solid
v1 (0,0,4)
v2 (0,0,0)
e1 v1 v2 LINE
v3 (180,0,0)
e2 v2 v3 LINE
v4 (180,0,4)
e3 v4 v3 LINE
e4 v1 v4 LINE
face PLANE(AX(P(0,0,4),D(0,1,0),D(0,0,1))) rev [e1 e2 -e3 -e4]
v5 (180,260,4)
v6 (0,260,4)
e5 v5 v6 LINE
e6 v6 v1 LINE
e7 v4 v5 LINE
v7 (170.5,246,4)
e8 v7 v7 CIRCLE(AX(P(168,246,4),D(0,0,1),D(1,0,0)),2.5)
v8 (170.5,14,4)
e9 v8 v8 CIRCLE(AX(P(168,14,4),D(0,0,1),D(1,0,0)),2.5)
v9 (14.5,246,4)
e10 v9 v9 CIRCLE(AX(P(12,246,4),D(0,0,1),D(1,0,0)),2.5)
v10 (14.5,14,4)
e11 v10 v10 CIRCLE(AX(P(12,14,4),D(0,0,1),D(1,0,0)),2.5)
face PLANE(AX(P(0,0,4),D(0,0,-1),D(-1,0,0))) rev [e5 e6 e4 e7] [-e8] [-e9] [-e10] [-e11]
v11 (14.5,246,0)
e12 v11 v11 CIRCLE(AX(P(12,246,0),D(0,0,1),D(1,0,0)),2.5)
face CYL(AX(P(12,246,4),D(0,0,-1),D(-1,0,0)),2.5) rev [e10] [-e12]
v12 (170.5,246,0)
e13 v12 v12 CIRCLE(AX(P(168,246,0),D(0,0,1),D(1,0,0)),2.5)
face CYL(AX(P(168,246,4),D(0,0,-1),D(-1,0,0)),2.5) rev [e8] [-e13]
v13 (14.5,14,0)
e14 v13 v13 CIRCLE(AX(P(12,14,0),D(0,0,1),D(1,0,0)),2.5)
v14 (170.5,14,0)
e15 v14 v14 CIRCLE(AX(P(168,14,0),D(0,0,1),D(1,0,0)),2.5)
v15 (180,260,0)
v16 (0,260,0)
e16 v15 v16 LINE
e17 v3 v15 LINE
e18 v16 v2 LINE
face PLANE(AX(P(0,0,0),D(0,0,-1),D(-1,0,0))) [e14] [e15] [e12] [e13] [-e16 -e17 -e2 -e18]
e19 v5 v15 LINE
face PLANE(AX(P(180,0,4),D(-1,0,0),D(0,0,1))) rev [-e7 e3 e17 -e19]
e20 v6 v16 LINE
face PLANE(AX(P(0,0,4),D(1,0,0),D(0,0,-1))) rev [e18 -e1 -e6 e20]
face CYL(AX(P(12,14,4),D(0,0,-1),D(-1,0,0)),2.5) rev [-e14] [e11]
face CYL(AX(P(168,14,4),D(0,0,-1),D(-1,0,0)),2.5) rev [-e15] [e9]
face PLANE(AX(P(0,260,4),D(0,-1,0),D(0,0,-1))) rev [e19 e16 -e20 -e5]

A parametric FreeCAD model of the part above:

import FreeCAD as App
import Part
import Sketcher
from FreeCAD import Vector


def add_polygon(sketch, points):
    """Adds a closed chain of lines whose ends are joined by coincident constraints."""
    first, n = sketch.GeometryCount, len(points)
    for a, b in zip(points, points[1:] + points[:1]):
        sketch.addGeometry(Part.LineSegment(App.Vector(*a, 0), App.Vector(*b, 0)), False)
    for i in range(n):
        sketch.addConstraint(Sketcher.Constraint("Coincident", first + i, 2, first + (i + 1) % n, 1))

doc = App.newDocument("Part")
body = doc.addObject("PartDesign::Body", "Body")

sketch1 = body.newObject("Sketcher::SketchObject", "Sketch")
sketch1.AttachmentSupport = (doc.getObject("XY_Plane"), [""])
sketch1.MapMode = "FlatFace"
add_polygon(sketch1, [(0, 260), (0, 0), (180, 0), (180, 260)])
sketch1.addGeometry(Part.Circle(Vector(12, 14, 0), Vector(0, 0, 1), 2.5), False)
sketch1.addGeometry(Part.Circle(Vector(168, 14, 0), Vector(0, 0, 1), 2.5), False)
sketch1.addGeometry(Part.Circle(Vector(12, 246, 0), Vector(0, 0, 1), 2.5), False)
sketch1.addGeometry(Part.Circle(Vector(168, 246, 0), Vector(0, 0, 1), 2.5), False)
sketch1.addConstraint([
    Sketcher.Constraint("Vertical", 0),
    Sketcher.Constraint("Horizontal", 1),
    Sketcher.Constraint("Vertical", 2),
    Sketcher.Constraint("Horizontal", 3),
    Sketcher.Constraint("Coincident", 0, 2, -1, 1),
    Sketcher.Constraint("Equal", 4, 5),
    Sketcher.Constraint("Equal", 5, 6),
    Sketcher.Constraint("Equal", 6, 7),
    Sketcher.Constraint("Horizontal", 4, 3, 5, 3),
    Sketcher.Constraint("Horizontal", 6, 3, 7, 3),
    Sketcher.Constraint("Vertical", 4, 3, 6, 3),
    Sketcher.Constraint("Vertical", 5, 3, 7, 3),
    Sketcher.Constraint("Diameter", 4, 5.0),
    Sketcher.Constraint("DistanceX", 1, 1, 1, 2, 180.0),
    Sketcher.Constraint("DistanceY", 0, 2, 0, 1, 260.0),
    Sketcher.Constraint("DistanceX", -1, 1, 4, 3, 12.0),
    Sketcher.Constraint("DistanceY", -1, 1, 4, 3, 14.0),
    Sketcher.Constraint("DistanceX", -1, 1, 5, 3, 168.0),
    Sketcher.Constraint("DistanceY", -1, 1, 6, 3, 246.0),
])
pad1 = body.newObject("PartDesign::Pad", "Pad")
pad1.Profile = sketch1
pad1.Length = 4

doc.recompute()
